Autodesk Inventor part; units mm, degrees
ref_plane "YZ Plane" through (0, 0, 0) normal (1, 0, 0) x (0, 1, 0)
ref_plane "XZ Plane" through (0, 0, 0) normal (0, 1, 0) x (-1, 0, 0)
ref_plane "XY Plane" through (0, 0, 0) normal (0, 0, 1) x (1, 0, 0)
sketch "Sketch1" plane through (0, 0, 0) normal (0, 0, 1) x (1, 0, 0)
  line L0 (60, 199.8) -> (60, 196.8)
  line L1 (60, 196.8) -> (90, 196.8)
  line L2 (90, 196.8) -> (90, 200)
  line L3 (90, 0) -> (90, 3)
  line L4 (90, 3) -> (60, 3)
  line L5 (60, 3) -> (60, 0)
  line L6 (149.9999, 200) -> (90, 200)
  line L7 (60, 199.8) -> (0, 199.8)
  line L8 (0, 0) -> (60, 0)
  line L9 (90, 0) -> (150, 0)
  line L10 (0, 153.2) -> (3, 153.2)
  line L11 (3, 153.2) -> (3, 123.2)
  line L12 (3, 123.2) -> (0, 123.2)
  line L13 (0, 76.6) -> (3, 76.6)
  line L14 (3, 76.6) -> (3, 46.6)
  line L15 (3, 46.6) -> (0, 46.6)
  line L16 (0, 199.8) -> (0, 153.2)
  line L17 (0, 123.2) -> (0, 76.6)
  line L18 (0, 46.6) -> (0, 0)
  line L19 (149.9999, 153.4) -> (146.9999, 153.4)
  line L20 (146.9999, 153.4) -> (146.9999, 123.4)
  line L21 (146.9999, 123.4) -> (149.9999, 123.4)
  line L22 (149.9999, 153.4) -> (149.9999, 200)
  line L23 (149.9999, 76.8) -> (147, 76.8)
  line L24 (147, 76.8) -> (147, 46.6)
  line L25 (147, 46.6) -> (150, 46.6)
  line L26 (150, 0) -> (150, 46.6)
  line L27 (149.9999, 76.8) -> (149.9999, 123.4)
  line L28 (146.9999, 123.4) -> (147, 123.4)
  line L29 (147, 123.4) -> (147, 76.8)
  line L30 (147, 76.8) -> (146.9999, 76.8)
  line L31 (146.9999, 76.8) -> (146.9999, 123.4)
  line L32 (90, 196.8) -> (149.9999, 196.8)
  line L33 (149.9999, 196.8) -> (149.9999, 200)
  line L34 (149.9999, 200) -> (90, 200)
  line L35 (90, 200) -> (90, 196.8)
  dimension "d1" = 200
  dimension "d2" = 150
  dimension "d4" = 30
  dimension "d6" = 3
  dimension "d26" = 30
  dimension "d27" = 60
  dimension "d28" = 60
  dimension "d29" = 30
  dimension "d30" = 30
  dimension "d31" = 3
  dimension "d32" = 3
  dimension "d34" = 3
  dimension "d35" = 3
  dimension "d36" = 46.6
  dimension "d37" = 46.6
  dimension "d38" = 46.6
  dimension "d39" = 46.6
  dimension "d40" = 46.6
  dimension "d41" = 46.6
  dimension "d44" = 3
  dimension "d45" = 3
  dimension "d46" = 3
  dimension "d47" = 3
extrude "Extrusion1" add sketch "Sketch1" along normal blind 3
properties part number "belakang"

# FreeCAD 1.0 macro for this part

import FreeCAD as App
import Part
import Sketcher
from FreeCAD import Vector
Q = App.Units.Quantity


def add_polygon(sketch, points):
    """Adds a closed chain of lines whose ends are joined by coincident constraints."""
    first, n = sketch.GeometryCount, len(points)
    for a, b in zip(points, points[1:] + points[:1]):
        sketch.addGeometry(Part.LineSegment(App.Vector(*a, 0), App.Vector(*b, 0)), False)
    for i in range(n):
        sketch.addConstraint(Sketcher.Constraint("Coincident", first + i, 2, first + (i + 1) % n, 1))

doc = App.newDocument("Part")
params = doc.addObject("Spreadsheet::Sheet", "Params")
for row, (alias, value) in enumerate([
    ("sketch1_width", "60 mm"),
    ("sketch1_width2", "3 mm"),
    ("sketch1_width3", "30 mm"),
    ("sketch1_height", "46.6 mm"),
    ("pad1_length", "3 mm"),
], start=1):
    params.set(f"A{row}", alias)
    params.set(f"B{row}", "=" + value)
    params.setAlias(f"B{row}", alias)

body = doc.addObject("PartDesign::Body", "Body")

sketch1 = body.newObject("Sketcher::SketchObject", "Sketch")
sketch1.AttachmentSupport = (doc.getObject("XY_Plane"), [""])
sketch1.MapMode = "FlatFace"
add_polygon(sketch1, [(60, 196.8), (60, 199.8), (0, 199.8), (0, 153.2), (3, 153.2), (3, 123.2), (0, 123.2), (0, 76.6), (3, 76.6), (3, 46.6), (0, 46.6), (0, 0), (60, 0), (60, 3), (90, 3), (90, 0), (150, 0), (150, 46.6), (147, 46.6), (147, 76.8), (149.9999, 76.8), (149.9999, 123.4), (146.9999, 123.4), (146.9999, 153.4), (149.9999, 153.4), (149.9999, 200), (90, 200), (90, 196.8)])
sketch1.addConstraint(Sketcher.Constraint("Vertical", 0))
sketch1.addConstraint(Sketcher.Constraint("Horizontal", 1))
sketch1.addConstraint(Sketcher.Constraint("Vertical", 2))
sketch1.addConstraint(Sketcher.Constraint("Horizontal", 3))
sketch1.addConstraint(Sketcher.Constraint("Vertical", 4))
sketch1.addConstraint(Sketcher.Constraint("Horizontal", 5))
sketch1.addConstraint(Sketcher.Constraint("Vertical", 6))
sketch1.addConstraint(Sketcher.Constraint("Horizontal", 7))
sketch1.addConstraint(Sketcher.Constraint("Vertical", 8))
sketch1.addConstraint(Sketcher.Constraint("Horizontal", 9))
sketch1.addConstraint(Sketcher.Constraint("Vertical", 10))
sketch1.addConstraint(Sketcher.Constraint("Horizontal", 11))
sketch1.addConstraint(Sketcher.Constraint("Vertical", 12))
sketch1.addConstraint(Sketcher.Constraint("Horizontal", 13))
sketch1.addConstraint(Sketcher.Constraint("Vertical", 14))
sketch1.addConstraint(Sketcher.Constraint("Horizontal", 15))
sketch1.addConstraint(Sketcher.Constraint("Vertical", 16))
sketch1.addConstraint(Sketcher.Constraint("Horizontal", 17))
sketch1.addConstraint(Sketcher.Constraint("Vertical", 18))
sketch1.addConstraint(Sketcher.Constraint("Horizontal", 19))
sketch1.addConstraint(Sketcher.Constraint("Vertical", 20))
sketch1.addConstraint(Sketcher.Constraint("Horizontal", 21))
sketch1.addConstraint(Sketcher.Constraint("Vertical", 22))
sketch1.addConstraint(Sketcher.Constraint("Horizontal", 23))
sketch1.addConstraint(Sketcher.Constraint("Vertical", 24))
sketch1.addConstraint(Sketcher.Constraint("Horizontal", 25))
sketch1.addConstraint(Sketcher.Constraint("Vertical", 26))
sketch1.addConstraint(Sketcher.Constraint("Horizontal", 27))
sketch1.addConstraint(Sketcher.Constraint("Coincident", 10, 2, -1, 1))
sketch1.addConstraint(Sketcher.Constraint("PointOnObject", 1, 2, -2))
sketch1.addConstraint(Sketcher.Constraint("PointOnObject", 5, 2, -2))
sketch1.addConstraint(Sketcher.Constraint("PointOnObject", 14, 2, -1))
sketch1.addConstraint(Sketcher.Constraint("Horizontal", 9, 2, 16, 2))
sketch1.addConstraint(Sketcher.Constraint("Vertical", 4, 2, 7, 2))
sketch1.addConstraint(Sketcher.Constraint("Vertical", 0, 2, 11, 2))
sketch1.addConstraint(Sketcher.Constraint("Vertical", 16, 2, 19, 2))
sketch1.addConstraint(Sketcher.Constraint("Vertical", 18, 2, 21, 2))
sketch1.addConstraint(Sketcher.Constraint("Vertical", 20, 2, 23, 2))
sketch1.addConstraint(Sketcher.Constraint("Vertical", 14, 2, 25, 2))
sketch1.addConstraint(Sketcher.Constraint("Equal", 11, 15))
sketch1.addConstraint(Sketcher.Constraint("Equal", 9, 17))
sketch1.addConstraint(Sketcher.Constraint("Equal", 23, 0))
sketch1.addConstraint(Sketcher.Constraint("Equal", 27, 4))
sketch1.addConstraint(Sketcher.Constraint("Equal", 2, 6))
sketch1.addConstraint(Sketcher.Constraint("Equal", 4, 8))
sketch1.addConstraint(Sketcher.Constraint("Equal", 6, 10))
sketch1.addConstraint(Sketcher.Constraint("Equal", 0, 12))
sketch1.addConstraint(Sketcher.Constraint("Equal", 16, 20))
sketch1.addConstraint(Sketcher.Constraint("Equal", 8, 22))
sketch1.addConstraint(Sketcher.Constraint("Equal", 20, 24))
sketch1.addConstraint(Sketcher.Constraint("DistanceX", 1, 2, 1, 1, Q("60 mm")))
sketch1.addConstraint(Sketcher.Constraint("DistanceX", 3, 1, 3, 2, Q("3 mm")))
sketch1.addConstraint(Sketcher.Constraint("DistanceX", 13, 1, 13, 2, Q("30 mm")))
sketch1.addConstraint(Sketcher.Constraint("DistanceY", 2, 2, 2, 1, Q("46.6 mm")))
sketch1.addConstraint(Sketcher.Constraint("DistanceY", -1, 1, 24, 2, Q("200 mm")))
sketch1.setExpression("Constraints[78]", "Params.sketch1_width")
sketch1.setExpression("Constraints[79]", "Params.sketch1_width2")
sketch1.setExpression("Constraints[80]", "Params.sketch1_width3")
sketch1.setExpression("Constraints[81]", "Params.sketch1_height")
pad1 = body.newObject("PartDesign::Pad", "Pad")
pad1.Profile = sketch1
pad1.setExpression("Length", "Params.pad1_length")

doc.recompute()
